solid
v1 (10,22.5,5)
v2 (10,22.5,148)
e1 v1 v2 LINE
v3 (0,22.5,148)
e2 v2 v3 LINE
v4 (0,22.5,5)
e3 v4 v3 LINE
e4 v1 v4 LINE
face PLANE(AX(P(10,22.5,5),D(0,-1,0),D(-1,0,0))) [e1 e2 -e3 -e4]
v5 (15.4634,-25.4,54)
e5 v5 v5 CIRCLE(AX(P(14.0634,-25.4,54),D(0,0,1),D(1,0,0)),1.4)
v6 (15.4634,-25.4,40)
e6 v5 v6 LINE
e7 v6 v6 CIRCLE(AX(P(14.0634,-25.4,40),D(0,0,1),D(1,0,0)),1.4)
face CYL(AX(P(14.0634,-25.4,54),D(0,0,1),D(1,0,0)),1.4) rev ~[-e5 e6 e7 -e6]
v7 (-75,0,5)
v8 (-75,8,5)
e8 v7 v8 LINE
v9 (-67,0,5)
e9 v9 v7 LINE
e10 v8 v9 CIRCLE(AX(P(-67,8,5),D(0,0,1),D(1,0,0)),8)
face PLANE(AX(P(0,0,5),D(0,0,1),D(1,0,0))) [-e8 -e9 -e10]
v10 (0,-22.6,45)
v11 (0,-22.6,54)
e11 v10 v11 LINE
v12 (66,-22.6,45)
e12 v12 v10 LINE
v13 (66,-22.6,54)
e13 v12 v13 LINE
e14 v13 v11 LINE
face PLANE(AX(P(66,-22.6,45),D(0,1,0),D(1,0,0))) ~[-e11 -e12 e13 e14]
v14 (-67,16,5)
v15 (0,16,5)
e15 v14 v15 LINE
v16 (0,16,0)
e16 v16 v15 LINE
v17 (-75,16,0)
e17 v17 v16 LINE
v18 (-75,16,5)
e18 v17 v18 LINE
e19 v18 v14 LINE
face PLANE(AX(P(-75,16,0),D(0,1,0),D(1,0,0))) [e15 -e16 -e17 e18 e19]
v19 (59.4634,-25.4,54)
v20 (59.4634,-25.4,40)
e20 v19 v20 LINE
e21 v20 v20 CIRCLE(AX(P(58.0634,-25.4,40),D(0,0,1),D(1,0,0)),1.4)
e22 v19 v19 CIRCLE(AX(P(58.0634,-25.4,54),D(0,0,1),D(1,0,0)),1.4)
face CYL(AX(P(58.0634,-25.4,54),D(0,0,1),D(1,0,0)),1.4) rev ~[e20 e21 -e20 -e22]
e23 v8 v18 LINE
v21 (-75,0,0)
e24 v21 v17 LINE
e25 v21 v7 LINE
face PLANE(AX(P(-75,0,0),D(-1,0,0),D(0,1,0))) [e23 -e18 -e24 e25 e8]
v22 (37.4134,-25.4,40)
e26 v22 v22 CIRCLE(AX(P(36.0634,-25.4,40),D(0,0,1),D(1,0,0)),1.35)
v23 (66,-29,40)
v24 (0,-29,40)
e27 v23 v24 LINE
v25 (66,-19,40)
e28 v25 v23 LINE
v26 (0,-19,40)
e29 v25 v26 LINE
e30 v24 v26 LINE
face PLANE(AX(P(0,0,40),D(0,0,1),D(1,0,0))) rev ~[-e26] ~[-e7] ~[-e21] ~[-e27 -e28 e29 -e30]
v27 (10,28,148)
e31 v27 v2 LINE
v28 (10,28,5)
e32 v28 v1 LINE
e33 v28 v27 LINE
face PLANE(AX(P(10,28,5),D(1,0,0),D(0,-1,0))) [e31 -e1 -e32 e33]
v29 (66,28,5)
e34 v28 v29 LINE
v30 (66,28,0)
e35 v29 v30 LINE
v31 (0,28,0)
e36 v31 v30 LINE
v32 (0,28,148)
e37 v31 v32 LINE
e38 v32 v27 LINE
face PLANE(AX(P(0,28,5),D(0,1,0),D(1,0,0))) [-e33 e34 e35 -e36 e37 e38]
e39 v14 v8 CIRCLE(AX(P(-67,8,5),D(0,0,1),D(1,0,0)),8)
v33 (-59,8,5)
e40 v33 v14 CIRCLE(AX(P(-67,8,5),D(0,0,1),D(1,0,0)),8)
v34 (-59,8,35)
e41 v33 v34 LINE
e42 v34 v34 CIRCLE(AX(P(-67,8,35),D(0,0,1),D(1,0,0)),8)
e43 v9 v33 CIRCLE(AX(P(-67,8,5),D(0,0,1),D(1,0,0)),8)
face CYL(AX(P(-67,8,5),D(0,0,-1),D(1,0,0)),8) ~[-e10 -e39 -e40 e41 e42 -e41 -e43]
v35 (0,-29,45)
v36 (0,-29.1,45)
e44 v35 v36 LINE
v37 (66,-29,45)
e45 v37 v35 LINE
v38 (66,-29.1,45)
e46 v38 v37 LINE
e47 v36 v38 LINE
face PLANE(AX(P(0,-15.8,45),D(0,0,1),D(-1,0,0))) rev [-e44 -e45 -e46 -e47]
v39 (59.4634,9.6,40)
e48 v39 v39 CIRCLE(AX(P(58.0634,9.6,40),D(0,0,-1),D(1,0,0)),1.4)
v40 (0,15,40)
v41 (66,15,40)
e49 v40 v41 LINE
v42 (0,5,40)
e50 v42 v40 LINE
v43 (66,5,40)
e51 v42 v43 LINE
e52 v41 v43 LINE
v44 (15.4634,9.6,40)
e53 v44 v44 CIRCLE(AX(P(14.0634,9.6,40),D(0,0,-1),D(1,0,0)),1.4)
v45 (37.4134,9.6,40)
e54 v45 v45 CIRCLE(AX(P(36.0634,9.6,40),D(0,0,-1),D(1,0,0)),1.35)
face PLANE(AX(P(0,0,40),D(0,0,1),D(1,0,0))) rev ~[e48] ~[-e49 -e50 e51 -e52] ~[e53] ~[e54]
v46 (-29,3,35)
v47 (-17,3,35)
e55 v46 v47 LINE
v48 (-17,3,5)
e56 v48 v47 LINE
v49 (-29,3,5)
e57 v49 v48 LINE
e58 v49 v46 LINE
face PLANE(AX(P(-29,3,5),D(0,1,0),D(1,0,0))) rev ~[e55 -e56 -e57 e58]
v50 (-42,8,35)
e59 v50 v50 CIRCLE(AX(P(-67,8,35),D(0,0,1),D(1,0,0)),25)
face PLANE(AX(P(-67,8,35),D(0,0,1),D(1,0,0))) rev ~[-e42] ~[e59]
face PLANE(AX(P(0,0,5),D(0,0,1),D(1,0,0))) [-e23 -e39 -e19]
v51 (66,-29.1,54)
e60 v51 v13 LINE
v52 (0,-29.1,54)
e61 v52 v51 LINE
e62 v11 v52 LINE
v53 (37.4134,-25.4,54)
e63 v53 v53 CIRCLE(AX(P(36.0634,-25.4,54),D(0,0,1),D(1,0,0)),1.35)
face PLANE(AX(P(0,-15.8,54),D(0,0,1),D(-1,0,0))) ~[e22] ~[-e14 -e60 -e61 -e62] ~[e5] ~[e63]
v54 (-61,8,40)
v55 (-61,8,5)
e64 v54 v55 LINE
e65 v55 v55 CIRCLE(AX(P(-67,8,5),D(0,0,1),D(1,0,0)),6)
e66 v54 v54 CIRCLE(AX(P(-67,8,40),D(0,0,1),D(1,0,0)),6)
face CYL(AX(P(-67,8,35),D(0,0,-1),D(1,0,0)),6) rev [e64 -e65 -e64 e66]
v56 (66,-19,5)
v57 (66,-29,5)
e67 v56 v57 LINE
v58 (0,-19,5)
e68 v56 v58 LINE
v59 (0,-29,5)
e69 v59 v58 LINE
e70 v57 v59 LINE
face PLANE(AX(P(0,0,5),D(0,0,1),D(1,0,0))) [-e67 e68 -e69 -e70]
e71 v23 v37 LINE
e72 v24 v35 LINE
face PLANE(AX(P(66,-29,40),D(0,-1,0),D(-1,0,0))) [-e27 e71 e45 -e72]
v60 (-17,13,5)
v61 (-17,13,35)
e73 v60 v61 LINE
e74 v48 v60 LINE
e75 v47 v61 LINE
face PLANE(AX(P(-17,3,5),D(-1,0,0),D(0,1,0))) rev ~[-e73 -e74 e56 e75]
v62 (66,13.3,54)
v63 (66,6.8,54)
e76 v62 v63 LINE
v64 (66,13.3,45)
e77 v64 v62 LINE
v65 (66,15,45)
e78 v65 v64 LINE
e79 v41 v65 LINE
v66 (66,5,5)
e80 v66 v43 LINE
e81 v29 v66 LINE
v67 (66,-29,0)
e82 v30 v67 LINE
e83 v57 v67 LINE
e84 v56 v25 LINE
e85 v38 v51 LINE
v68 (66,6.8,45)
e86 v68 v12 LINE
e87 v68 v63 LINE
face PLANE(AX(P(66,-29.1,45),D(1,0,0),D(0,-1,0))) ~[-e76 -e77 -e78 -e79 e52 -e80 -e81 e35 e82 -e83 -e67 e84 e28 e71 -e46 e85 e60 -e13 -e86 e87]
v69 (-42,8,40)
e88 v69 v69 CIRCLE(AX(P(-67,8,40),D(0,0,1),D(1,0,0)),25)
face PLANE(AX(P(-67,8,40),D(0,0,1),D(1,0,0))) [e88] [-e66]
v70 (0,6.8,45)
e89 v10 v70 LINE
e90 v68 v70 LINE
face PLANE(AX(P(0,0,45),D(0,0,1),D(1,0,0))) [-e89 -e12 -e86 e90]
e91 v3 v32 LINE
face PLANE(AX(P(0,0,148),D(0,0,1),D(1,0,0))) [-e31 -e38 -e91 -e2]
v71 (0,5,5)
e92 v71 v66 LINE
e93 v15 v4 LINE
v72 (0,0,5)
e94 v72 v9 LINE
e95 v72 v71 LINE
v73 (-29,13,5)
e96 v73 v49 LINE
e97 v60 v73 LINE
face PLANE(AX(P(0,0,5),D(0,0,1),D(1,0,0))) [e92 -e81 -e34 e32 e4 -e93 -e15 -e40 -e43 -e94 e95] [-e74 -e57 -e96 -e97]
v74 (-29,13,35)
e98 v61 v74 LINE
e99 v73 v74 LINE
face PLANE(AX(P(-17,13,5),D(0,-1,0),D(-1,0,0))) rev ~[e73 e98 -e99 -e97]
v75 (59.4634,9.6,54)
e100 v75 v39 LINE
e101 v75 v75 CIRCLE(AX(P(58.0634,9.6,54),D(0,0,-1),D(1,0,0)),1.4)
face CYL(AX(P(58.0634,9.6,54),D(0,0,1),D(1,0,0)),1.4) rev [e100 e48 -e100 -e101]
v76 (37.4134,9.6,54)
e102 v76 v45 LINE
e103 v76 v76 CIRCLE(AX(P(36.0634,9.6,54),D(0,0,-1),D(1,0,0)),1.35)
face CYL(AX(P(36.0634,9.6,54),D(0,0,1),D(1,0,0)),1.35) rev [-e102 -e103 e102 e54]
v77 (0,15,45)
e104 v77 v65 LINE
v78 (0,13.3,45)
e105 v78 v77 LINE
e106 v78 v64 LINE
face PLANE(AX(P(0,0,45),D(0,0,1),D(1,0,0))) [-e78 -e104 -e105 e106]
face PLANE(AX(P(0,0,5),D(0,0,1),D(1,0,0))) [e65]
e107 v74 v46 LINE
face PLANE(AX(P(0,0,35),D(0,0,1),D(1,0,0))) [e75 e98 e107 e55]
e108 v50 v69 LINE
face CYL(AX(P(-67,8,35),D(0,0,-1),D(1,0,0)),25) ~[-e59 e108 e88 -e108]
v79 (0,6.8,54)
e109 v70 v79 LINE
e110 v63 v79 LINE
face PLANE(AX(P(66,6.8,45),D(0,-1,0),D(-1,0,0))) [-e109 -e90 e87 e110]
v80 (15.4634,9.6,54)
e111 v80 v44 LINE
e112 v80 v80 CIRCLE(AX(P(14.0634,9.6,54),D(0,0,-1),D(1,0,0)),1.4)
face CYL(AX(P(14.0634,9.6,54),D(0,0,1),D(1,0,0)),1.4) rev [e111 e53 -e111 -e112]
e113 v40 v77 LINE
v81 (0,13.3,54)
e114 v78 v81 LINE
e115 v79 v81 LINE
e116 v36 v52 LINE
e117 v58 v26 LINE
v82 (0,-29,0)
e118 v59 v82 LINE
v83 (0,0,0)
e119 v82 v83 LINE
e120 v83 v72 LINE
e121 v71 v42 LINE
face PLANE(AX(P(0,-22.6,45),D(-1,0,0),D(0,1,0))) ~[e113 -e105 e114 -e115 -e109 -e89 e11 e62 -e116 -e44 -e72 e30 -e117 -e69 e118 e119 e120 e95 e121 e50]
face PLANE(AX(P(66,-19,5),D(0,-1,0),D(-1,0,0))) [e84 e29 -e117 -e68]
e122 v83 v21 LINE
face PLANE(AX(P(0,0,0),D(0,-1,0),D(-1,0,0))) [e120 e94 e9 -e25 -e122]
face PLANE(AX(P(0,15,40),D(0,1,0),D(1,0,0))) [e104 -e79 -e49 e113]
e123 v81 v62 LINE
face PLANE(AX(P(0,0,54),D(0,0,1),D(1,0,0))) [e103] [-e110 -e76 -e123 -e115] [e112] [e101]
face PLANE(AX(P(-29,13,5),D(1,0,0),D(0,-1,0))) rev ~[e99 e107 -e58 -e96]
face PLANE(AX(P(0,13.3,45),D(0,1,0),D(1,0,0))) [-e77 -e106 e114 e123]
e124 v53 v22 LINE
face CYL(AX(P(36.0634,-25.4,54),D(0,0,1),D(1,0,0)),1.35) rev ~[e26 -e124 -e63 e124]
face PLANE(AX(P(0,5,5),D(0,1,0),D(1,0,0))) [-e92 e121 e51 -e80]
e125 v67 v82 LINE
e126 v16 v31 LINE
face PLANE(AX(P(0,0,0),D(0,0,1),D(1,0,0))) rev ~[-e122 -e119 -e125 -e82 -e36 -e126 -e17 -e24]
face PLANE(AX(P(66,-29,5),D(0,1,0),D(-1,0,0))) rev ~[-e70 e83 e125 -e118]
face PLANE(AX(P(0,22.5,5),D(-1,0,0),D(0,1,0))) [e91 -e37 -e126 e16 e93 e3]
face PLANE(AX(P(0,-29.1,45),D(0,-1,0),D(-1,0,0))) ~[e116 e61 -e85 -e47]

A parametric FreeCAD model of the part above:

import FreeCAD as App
import Part
import Sketcher

V = App.Vector

doc = App.newDocument("Part")
body = doc.addObject("PartDesign::Body", "Body")

# Sketch on XY plane
sketch1 = doc.addObject("Sketcher::SketchObject", "Sketch")
body.addObject(sketch1)
sketch1.AttachmentSupport = (doc.XY_Plane, [""])
sketch1.MapMode = "FlatFace"
sketch1.addGeometry(Part.LineSegment(V(-75, 0, 0), V(0, 0, 0)), False)
sketch1.addGeometry(Part.LineSegment(V(0, 0, 0), V(0, 16, 0)), False)
sketch1.addGeometry(Part.LineSegment(V(0, 16, 0), V(-75, 16, 0)), False)
sketch1.addGeometry(Part.LineSegment(V(-75, 16, 0), V(-75, 0, 0)), False)
sketch1.addConstraint(Sketcher.Constraint("Coincident", 0, 2, 1, 1))
sketch1.addConstraint(Sketcher.Constraint("Coincident", 1, 2, 2, 1))
sketch1.addConstraint(Sketcher.Constraint("Coincident", 2, 2, 3, 1))
sketch1.addConstraint(Sketcher.Constraint("Coincident", 3, 2, 0, 1))
sketch1.addConstraint(Sketcher.Constraint("Horizontal", 0))
sketch1.addConstraint(Sketcher.Constraint("Vertical", 1))
sketch1.addConstraint(Sketcher.Constraint("Horizontal", 2))
sketch1.addConstraint(Sketcher.Constraint("Vertical", 3))
sketch1.addConstraint(Sketcher.Constraint("Coincident", 0, 2, -1, 1))
sketch1.addConstraint(Sketcher.Constraint("DistanceX", 0, 1, 0, 2, 75.0))
sketch1.addConstraint(Sketcher.Constraint("DistanceY", 1, 1, 1, 2, 16.0))
pad1 = doc.addObject("PartDesign::Pad", "Pad")
body.addObject(pad1)
pad1.Profile = sketch1
pad1.Length = 5

# Sketch on XY plane
sketch2 = doc.addObject("Sketcher::SketchObject", "Sketch001")
body.addObject(sketch2)
sketch2.AttachmentSupport = (doc.XY_Plane, [""])
sketch2.MapMode = "FlatFace"
sketch2.AttachmentOffset = App.Placement(V(0, 0, 5), App.Rotation())
sketch2.addGeometry(Part.Circle(V(-67, 8, 0), V(0, 0, 1), 8), False)
sketch2.addGeometry(Part.Circle(V(-67, 8, 0), V(0, 0, 1), 6), False)
sketch2.addConstraint(Sketcher.Constraint("Coincident", 1, 3, 0, 3))
sketch2.addConstraint(Sketcher.Constraint("Diameter", 0, 16.0))
sketch2.addConstraint(Sketcher.Constraint("Diameter", 1, 12.0))
sketch2.addConstraint(Sketcher.Constraint("DistanceX", 0, 3, -1, 1, 67.0))
sketch2.addConstraint(Sketcher.Constraint("DistanceY", -1, 1, 0, 3, 8.0))
pad2 = doc.addObject("PartDesign::Pad", "Pad001")
body.addObject(pad2)
pad2.Profile = sketch2
pad2.Length = 30

# Sketch on XY plane
sketch3 = doc.addObject("Sketcher::SketchObject", "Sketch002")
body.addObject(sketch3)
sketch3.AttachmentSupport = (doc.XY_Plane, [""])
sketch3.MapMode = "FlatFace"
sketch3.AttachmentOffset = App.Placement(V(0, 0, 35), App.Rotation())
sketch3.addGeometry(Part.Circle(V(-67, 8, 0), V(0, 0, 1), 25), False)
sketch3.addGeometry(Part.Circle(V(-67, 8, 0), V(0, 0, 1), 6), False)
sketch3.addConstraint(Sketcher.Constraint("Coincident", 1, 3, 0, 3))
sketch3.addConstraint(Sketcher.Constraint("Diameter", 0, 50.0))
sketch3.addConstraint(Sketcher.Constraint("Diameter", 1, 12.0))
sketch3.addConstraint(Sketcher.Constraint("DistanceX", 0, 3, -1, 1, 67.0))
sketch3.addConstraint(Sketcher.Constraint("DistanceY", -1, 1, 0, 3, 8.0))
pad3 = doc.addObject("PartDesign::Pad", "Pad002")
body.addObject(pad3)
pad3.Profile = sketch3
pad3.Length = 5

# Sketch on XY plane
sketch4 = doc.addObject("Sketcher::SketchObject", "Sketch003")
body.addObject(sketch4)
sketch4.AttachmentSupport = (doc.XY_Plane, [""])
sketch4.MapMode = "FlatFace"
sketch4.AttachmentOffset = App.Placement(V(0, 0, 5), App.Rotation())
sketch4.addGeometry(Part.LineSegment(V(-29, 13, 0), V(-29, 3, 0)), False)
sketch4.addGeometry(Part.LineSegment(V(-29, 3, 0), V(-17, 3, 0)), False)
sketch4.addGeometry(Part.LineSegment(V(-17, 3, 0), V(-17, 13, 0)), False)
sketch4.addGeometry(Part.LineSegment(V(-17, 13, 0), V(-29, 13, 0)), False)
sketch4.addConstraint(Sketcher.Constraint("Coincident", 0, 2, 1, 1))
sketch4.addConstraint(Sketcher.Constraint("Coincident", 1, 2, 2, 1))
sketch4.addConstraint(Sketcher.Constraint("Coincident", 2, 2, 3, 1))
sketch4.addConstraint(Sketcher.Constraint("Coincident", 3, 2, 0, 1))
sketch4.addConstraint(Sketcher.Constraint("Vertical", 0))
sketch4.addConstraint(Sketcher.Constraint("Horizontal", 1))
sketch4.addConstraint(Sketcher.Constraint("Vertical", 2))
sketch4.addConstraint(Sketcher.Constraint("Horizontal", 3))
sketch4.addConstraint(Sketcher.Constraint("DistanceX", 1, 1, 1, 2, 12.0))
sketch4.addConstraint(Sketcher.Constraint("DistanceY", 0, 2, 0, 1, 10.0))
sketch4.addConstraint(Sketcher.Constraint("DistanceX", 0, 2, -1, 1, 29.0))
sketch4.addConstraint(Sketcher.Constraint("DistanceY", -1, 1, 0, 2, 3.0))
pad4 = doc.addObject("PartDesign::Pad", "Pad003")
body.addObject(pad4)
pad4.Profile = sketch4
pad4.Length = 30

# Sketch on XY plane
sketch5 = doc.addObject("Sketcher::SketchObject", "Sketch004")
body.addObject(sketch5)
sketch5.AttachmentSupport = (doc.XY_Plane, [""])
sketch5.MapMode = "FlatFace"
sketch5.AttachmentOffset = App.Placement(V(0, 0, 5), App.Rotation())
sketch5.addGeometry(Part.LineSegment(V(0, -29, 0), V(66, -29, 0)), False)
sketch5.addGeometry(Part.LineSegment(V(66, -29, 0), V(66, 28, 0)), False)
sketch5.addGeometry(Part.LineSegment(V(66, 28, 0), V(0, 28, 0)), False)
sketch5.addGeometry(Part.LineSegment(V(0, 28, 0), V(0, -29, 0)), False)
sketch5.addConstraint(Sketcher.Constraint("Coincident", 0, 2, 1, 1))
sketch5.addConstraint(Sketcher.Constraint("Coincident", 1, 2, 2, 1))
sketch5.addConstraint(Sketcher.Constraint("Coincident", 2, 2, 3, 1))
sketch5.addConstraint(Sketcher.Constraint("Coincident", 3, 2, 0, 1))
sketch5.addConstraint(Sketcher.Constraint("Horizontal", 0))
sketch5.addConstraint(Sketcher.Constraint("Vertical", 1))
sketch5.addConstraint(Sketcher.Constraint("Horizontal", 2))
sketch5.addConstraint(Sketcher.Constraint("Vertical", 3))
sketch5.addConstraint(Sketcher.Constraint("PointOnObject", 2, 2, -2))
sketch5.addConstraint(Sketcher.Constraint("DistanceX", 0, 1, 0, 2, 66.0))
sketch5.addConstraint(Sketcher.Constraint("DistanceY", 1, 1, 1, 2, 57.0))
sketch5.addConstraint(Sketcher.Constraint("DistanceY", 0, 2, -1, 1, 29.0))
pad5 = doc.addObject("PartDesign::Pad", "Pad004")
body.addObject(pad5)
pad5.Profile = sketch5
pad5.Length = 5
pad5.Reversed = True

# Sketch on XY plane
sketch6 = doc.addObject("Sketcher::SketchObject", "Sketch005")
body.addObject(sketch6)
sketch6.AttachmentSupport = (doc.XY_Plane, [""])
sketch6.MapMode = "FlatFace"
sketch6.AttachmentOffset = App.Placement(V(0, 0, 5), App.Rotation())
sketch6.addGeometry(Part.LineSegment(V(66, 5, 0), V(0, 5, 0)), False)
sketch6.addGeometry(Part.LineSegment(V(0, 5, 0), V(0, -19, 0)), False)
sketch6.addGeometry(Part.LineSegment(V(0, -19, 0), V(66, -19, 0)), False)
sketch6.addGeometry(Part.LineSegment(V(66, -19, 0), V(66, 5, 0)), False)
sketch6.addConstraint(Sketcher.Constraint("Coincident", 0, 2, 1, 1))
sketch6.addConstraint(Sketcher.Constraint("Coincident", 1, 2, 2, 1))
sketch6.addConstraint(Sketcher.Constraint("Coincident", 2, 2, 3, 1))
sketch6.addConstraint(Sketcher.Constraint("Coincident", 3, 2, 0, 1))
sketch6.addConstraint(Sketcher.Constraint("Horizontal", 0))
sketch6.addConstraint(Sketcher.Constraint("Vertical", 1))
sketch6.addConstraint(Sketcher.Constraint("Horizontal", 2))
sketch6.addConstraint(Sketcher.Constraint("Vertical", 3))
sketch6.addConstraint(Sketcher.Constraint("PointOnObject", 0, 2, -2))
sketch6.addConstraint(Sketcher.Constraint("DistanceX", 0, 2, 0, 1, 66.0))
sketch6.addConstraint(Sketcher.Constraint("DistanceY", 1, 2, 1, 1, 24.0))
sketch6.addConstraint(Sketcher.Constraint("DistanceY", -1, 1, 0, 2, 5.0))
pad6 = doc.addObject("PartDesign::Pad", "Pad005")
body.addObject(pad6)
pad6.Profile = sketch6
pad6.Length = 35

# Sketch on XY plane
sketch7 = doc.addObject("Sketcher::SketchObject", "Sketch006")
body.addObject(sketch7)
sketch7.AttachmentSupport = (doc.XY_Plane, [""])
sketch7.MapMode = "FlatFace"
sketch7.AttachmentOffset = App.Placement(V(0, 0, 5), App.Rotation())
sketch7.addGeometry(Part.LineSegment(V(10, 28, 0), V(0, 28, 0)), False)
sketch7.addGeometry(Part.LineSegment(V(0, 28, 0), V(0, 22, 0)), False)
sketch7.addGeometry(Part.LineSegment(V(0, 22, 0), V(10, 22, 0)), False)
sketch7.addGeometry(Part.LineSegment(V(10, 22, 0), V(10, 28, 0)), False)
sketch7.addConstraint(Sketcher.Constraint("Coincident", 0, 2, 1, 1))
sketch7.addConstraint(Sketcher.Constraint("Coincident", 1, 2, 2, 1))
sketch7.addConstraint(Sketcher.Constraint("Coincident", 2, 2, 3, 1))
sketch7.addConstraint(Sketcher.Constraint("Coincident", 3, 2, 0, 1))
sketch7.addConstraint(Sketcher.Constraint("Horizontal", 0))
sketch7.addConstraint(Sketcher.Constraint("Vertical", 1))
sketch7.addConstraint(Sketcher.Constraint("Horizontal", 2))
sketch7.addConstraint(Sketcher.Constraint("Vertical", 3))
sketch7.addConstraint(Sketcher.Constraint("PointOnObject", 0, 2, -2))
sketch7.addConstraint(Sketcher.Constraint("DistanceX", 0, 2, 0, 1, 10.0))
sketch7.addConstraint(Sketcher.Constraint("DistanceY", 1, 2, 1, 1, 5.5))
sketch7.addConstraint(Sketcher.Constraint("DistanceY", -1, 1, 0, 2, 28.0))
pad7 = doc.addObject("PartDesign::Pad", "Pad006")
body.addObject(pad7)
pad7.Profile = sketch7
pad7.Length = 143

# Sketch on XY plane
sketch8 = doc.addObject("Sketcher::SketchObject", "Sketch007")
body.addObject(sketch8)
sketch8.AttachmentSupport = (doc.XY_Plane, [""])
sketch8.MapMode = "FlatFace"
sketch8.AttachmentOffset = App.Placement(V(0, 0, 40), App.Rotation())
sketch8.addGeometry(Part.LineSegment(V(0, -29, 0), V(66, -29, 0)), False)
sketch8.addGeometry(Part.LineSegment(V(66, -29, 0), V(66, 15, 0)), False)
sketch8.addGeometry(Part.LineSegment(V(66, 15, 0), V(0, 15, 0)), False)
sketch8.addGeometry(Part.LineSegment(V(0, 15, 0), V(0, -29, 0)), False)
sketch8.addConstraint(Sketcher.Constraint("Coincident", 0, 2, 1, 1))
sketch8.addConstraint(Sketcher.Constraint("Coincident", 1, 2, 2, 1))
sketch8.addConstraint(Sketcher.Constraint("Coincident", 2, 2, 3, 1))
sketch8.addConstraint(Sketcher.Constraint("Coincident", 3, 2, 0, 1))
sketch8.addConstraint(Sketcher.Constraint("Horizontal", 0))
sketch8.addConstraint(Sketcher.Constraint("Vertical", 1))
sketch8.addConstraint(Sketcher.Constraint("Horizontal", 2))
sketch8.addConstraint(Sketcher.Constraint("Vertical", 3))
sketch8.addConstraint(Sketcher.Constraint("PointOnObject", 2, 2, -2))
sketch8.addConstraint(Sketcher.Constraint("DistanceX", 0, 1, 0, 2, 66.0))
sketch8.addConstraint(Sketcher.Constraint("DistanceY", 1, 1, 1, 2, 44.0))
sketch8.addConstraint(Sketcher.Constraint("DistanceY", 0, 2, -1, 1, 29.0))
pad8 = doc.addObject("PartDesign::Pad", "Pad007")
body.addObject(pad8)
pad8.Profile = sketch8
pad8.Length = 5

# Sketch on XY plane
sketch9 = doc.addObject("Sketcher::SketchObject", "Sketch008")
body.addObject(sketch9)
sketch9.AttachmentSupport = (doc.XY_Plane, [""])
sketch9.MapMode = "FlatFace"
sketch9.AttachmentOffset = App.Placement(V(0, 0, 45), App.Rotation())
sketch9.addGeometry(Part.LineSegment(V(66, 13, 0), V(0, 13, 0)), False)
sketch9.addGeometry(Part.LineSegment(V(0, 13, 0), V(0, 7, 0)), False)
sketch9.addGeometry(Part.LineSegment(V(0, 7, 0), V(66, 7, 0)), False)
sketch9.addGeometry(Part.LineSegment(V(66, 7, 0), V(66, 13, 0)), False)
sketch9.addConstraint(Sketcher.Constraint("Coincident", 0, 2, 1, 1))
sketch9.addConstraint(Sketcher.Constraint("Coincident", 1, 2, 2, 1))
sketch9.addConstraint(Sketcher.Constraint("Coincident", 2, 2, 3, 1))
sketch9.addConstraint(Sketcher.Constraint("Coincident", 3, 2, 0, 1))
sketch9.addConstraint(Sketcher.Constraint("Horizontal", 0))
sketch9.addConstraint(Sketcher.Constraint("Vertical", 1))
sketch9.addConstraint(Sketcher.Constraint("Horizontal", 2))
sketch9.addConstraint(Sketcher.Constraint("Vertical", 3))
sketch9.addConstraint(Sketcher.Constraint("PointOnObject", 0, 2, -2))
sketch9.addConstraint(Sketcher.Constraint("DistanceX", 0, 2, 0, 1, 66.0))
sketch9.addConstraint(Sketcher.Constraint("DistanceY", 1, 2, 1, 1, 6.5))
sketch9.addConstraint(Sketcher.Constraint("DistanceY", -1, 1, 0, 2, 13.3))
pad9 = doc.addObject("PartDesign::Pad", "Pad008")
body.addObject(pad9)
pad9.Profile = sketch9
pad9.Length = 9
doc.recompute()

datumplane = doc.addObject("PartDesign::Plane", "DatumPlane")
body.addObject(datumplane)
datumplane.AttachmentSupport = (doc.XZ_Plane, [""])
datumplane.MapMode = "FlatFace"
datumplane.AttachmentOffset = App.Placement(V(0, 0, 7.9), App.Rotation())
mirrored = doc.addObject("PartDesign::Mirrored", "Mirrored")
body.addObject(mirrored)
mirrored.Originals = [pad9]
mirrored.MirrorPlane = (datumplane, [""])
body.Tip = mirrored

# Sketch on XY plane
sketch10 = doc.addObject("Sketcher::SketchObject", "Sketch009")
body.addObject(sketch10)
sketch10.AttachmentSupport = (doc.XY_Plane, [""])
sketch10.MapMode = "FlatFace"
sketch10.AttachmentOffset = App.Placement(V(0, 0, 54), App.Rotation())
sketch10.addGeometry(Part.Circle(V(14.1, -25.4, 0), V(0, 0, 1), 1.4), False)
sketch10.addGeometry(Part.Circle(V(36.1, -25.4, 0), V(0, 0, 1), 1.4), False)
sketch10.addGeometry(Part.Circle(V(58.1, -25.4, 0), V(0, 0, 1), 1.4), False)
sketch10.addConstraint(Sketcher.Constraint("Equal", 0, 2))
sketch10.addConstraint(Sketcher.Constraint("Horizontal", 0, 3, 1, 3))
sketch10.addConstraint(Sketcher.Constraint("Horizontal", 1, 3, 2, 3))
sketch10.addConstraint(Sketcher.Constraint("Diameter", 0, 2.8))
sketch10.addConstraint(Sketcher.Constraint("Diameter", 1, 2.7))
sketch10.addConstraint(Sketcher.Constraint("DistanceX", 0, 3, 1, 3, 22.0))
sketch10.addConstraint(Sketcher.Constraint("DistanceX", 1, 3, 2, 3, 22.0))
sketch10.addConstraint(Sketcher.Constraint("DistanceY", 0, 3, -1, 1, 25.4))
sketch10.addConstraint(Sketcher.Constraint("DistanceX", -1, 1, 0, 3, 14.0634))
pocket1 = doc.addObject("PartDesign::Pocket", "Pocket")
body.addObject(pocket1)
pocket1.Profile = sketch10
pocket1.Type = "UpToFirst"
doc.recompute()

datumplane2 = doc.addObject("PartDesign::Plane", "DatumPlane001")
body.addObject(datumplane2)
datumplane2.AttachmentSupport = (doc.XZ_Plane, [""])
datumplane2.MapMode = "FlatFace"
datumplane2.AttachmentOffset = App.Placement(V(0, 0, 7.9), App.Rotation())
mirrored2 = doc.addObject("PartDesign::Mirrored", "Mirrored001")
body.addObject(mirrored2)
mirrored2.Originals = [pocket1]
mirrored2.MirrorPlane = (datumplane2, [""])
body.Tip = mirrored2

doc.recompute()
